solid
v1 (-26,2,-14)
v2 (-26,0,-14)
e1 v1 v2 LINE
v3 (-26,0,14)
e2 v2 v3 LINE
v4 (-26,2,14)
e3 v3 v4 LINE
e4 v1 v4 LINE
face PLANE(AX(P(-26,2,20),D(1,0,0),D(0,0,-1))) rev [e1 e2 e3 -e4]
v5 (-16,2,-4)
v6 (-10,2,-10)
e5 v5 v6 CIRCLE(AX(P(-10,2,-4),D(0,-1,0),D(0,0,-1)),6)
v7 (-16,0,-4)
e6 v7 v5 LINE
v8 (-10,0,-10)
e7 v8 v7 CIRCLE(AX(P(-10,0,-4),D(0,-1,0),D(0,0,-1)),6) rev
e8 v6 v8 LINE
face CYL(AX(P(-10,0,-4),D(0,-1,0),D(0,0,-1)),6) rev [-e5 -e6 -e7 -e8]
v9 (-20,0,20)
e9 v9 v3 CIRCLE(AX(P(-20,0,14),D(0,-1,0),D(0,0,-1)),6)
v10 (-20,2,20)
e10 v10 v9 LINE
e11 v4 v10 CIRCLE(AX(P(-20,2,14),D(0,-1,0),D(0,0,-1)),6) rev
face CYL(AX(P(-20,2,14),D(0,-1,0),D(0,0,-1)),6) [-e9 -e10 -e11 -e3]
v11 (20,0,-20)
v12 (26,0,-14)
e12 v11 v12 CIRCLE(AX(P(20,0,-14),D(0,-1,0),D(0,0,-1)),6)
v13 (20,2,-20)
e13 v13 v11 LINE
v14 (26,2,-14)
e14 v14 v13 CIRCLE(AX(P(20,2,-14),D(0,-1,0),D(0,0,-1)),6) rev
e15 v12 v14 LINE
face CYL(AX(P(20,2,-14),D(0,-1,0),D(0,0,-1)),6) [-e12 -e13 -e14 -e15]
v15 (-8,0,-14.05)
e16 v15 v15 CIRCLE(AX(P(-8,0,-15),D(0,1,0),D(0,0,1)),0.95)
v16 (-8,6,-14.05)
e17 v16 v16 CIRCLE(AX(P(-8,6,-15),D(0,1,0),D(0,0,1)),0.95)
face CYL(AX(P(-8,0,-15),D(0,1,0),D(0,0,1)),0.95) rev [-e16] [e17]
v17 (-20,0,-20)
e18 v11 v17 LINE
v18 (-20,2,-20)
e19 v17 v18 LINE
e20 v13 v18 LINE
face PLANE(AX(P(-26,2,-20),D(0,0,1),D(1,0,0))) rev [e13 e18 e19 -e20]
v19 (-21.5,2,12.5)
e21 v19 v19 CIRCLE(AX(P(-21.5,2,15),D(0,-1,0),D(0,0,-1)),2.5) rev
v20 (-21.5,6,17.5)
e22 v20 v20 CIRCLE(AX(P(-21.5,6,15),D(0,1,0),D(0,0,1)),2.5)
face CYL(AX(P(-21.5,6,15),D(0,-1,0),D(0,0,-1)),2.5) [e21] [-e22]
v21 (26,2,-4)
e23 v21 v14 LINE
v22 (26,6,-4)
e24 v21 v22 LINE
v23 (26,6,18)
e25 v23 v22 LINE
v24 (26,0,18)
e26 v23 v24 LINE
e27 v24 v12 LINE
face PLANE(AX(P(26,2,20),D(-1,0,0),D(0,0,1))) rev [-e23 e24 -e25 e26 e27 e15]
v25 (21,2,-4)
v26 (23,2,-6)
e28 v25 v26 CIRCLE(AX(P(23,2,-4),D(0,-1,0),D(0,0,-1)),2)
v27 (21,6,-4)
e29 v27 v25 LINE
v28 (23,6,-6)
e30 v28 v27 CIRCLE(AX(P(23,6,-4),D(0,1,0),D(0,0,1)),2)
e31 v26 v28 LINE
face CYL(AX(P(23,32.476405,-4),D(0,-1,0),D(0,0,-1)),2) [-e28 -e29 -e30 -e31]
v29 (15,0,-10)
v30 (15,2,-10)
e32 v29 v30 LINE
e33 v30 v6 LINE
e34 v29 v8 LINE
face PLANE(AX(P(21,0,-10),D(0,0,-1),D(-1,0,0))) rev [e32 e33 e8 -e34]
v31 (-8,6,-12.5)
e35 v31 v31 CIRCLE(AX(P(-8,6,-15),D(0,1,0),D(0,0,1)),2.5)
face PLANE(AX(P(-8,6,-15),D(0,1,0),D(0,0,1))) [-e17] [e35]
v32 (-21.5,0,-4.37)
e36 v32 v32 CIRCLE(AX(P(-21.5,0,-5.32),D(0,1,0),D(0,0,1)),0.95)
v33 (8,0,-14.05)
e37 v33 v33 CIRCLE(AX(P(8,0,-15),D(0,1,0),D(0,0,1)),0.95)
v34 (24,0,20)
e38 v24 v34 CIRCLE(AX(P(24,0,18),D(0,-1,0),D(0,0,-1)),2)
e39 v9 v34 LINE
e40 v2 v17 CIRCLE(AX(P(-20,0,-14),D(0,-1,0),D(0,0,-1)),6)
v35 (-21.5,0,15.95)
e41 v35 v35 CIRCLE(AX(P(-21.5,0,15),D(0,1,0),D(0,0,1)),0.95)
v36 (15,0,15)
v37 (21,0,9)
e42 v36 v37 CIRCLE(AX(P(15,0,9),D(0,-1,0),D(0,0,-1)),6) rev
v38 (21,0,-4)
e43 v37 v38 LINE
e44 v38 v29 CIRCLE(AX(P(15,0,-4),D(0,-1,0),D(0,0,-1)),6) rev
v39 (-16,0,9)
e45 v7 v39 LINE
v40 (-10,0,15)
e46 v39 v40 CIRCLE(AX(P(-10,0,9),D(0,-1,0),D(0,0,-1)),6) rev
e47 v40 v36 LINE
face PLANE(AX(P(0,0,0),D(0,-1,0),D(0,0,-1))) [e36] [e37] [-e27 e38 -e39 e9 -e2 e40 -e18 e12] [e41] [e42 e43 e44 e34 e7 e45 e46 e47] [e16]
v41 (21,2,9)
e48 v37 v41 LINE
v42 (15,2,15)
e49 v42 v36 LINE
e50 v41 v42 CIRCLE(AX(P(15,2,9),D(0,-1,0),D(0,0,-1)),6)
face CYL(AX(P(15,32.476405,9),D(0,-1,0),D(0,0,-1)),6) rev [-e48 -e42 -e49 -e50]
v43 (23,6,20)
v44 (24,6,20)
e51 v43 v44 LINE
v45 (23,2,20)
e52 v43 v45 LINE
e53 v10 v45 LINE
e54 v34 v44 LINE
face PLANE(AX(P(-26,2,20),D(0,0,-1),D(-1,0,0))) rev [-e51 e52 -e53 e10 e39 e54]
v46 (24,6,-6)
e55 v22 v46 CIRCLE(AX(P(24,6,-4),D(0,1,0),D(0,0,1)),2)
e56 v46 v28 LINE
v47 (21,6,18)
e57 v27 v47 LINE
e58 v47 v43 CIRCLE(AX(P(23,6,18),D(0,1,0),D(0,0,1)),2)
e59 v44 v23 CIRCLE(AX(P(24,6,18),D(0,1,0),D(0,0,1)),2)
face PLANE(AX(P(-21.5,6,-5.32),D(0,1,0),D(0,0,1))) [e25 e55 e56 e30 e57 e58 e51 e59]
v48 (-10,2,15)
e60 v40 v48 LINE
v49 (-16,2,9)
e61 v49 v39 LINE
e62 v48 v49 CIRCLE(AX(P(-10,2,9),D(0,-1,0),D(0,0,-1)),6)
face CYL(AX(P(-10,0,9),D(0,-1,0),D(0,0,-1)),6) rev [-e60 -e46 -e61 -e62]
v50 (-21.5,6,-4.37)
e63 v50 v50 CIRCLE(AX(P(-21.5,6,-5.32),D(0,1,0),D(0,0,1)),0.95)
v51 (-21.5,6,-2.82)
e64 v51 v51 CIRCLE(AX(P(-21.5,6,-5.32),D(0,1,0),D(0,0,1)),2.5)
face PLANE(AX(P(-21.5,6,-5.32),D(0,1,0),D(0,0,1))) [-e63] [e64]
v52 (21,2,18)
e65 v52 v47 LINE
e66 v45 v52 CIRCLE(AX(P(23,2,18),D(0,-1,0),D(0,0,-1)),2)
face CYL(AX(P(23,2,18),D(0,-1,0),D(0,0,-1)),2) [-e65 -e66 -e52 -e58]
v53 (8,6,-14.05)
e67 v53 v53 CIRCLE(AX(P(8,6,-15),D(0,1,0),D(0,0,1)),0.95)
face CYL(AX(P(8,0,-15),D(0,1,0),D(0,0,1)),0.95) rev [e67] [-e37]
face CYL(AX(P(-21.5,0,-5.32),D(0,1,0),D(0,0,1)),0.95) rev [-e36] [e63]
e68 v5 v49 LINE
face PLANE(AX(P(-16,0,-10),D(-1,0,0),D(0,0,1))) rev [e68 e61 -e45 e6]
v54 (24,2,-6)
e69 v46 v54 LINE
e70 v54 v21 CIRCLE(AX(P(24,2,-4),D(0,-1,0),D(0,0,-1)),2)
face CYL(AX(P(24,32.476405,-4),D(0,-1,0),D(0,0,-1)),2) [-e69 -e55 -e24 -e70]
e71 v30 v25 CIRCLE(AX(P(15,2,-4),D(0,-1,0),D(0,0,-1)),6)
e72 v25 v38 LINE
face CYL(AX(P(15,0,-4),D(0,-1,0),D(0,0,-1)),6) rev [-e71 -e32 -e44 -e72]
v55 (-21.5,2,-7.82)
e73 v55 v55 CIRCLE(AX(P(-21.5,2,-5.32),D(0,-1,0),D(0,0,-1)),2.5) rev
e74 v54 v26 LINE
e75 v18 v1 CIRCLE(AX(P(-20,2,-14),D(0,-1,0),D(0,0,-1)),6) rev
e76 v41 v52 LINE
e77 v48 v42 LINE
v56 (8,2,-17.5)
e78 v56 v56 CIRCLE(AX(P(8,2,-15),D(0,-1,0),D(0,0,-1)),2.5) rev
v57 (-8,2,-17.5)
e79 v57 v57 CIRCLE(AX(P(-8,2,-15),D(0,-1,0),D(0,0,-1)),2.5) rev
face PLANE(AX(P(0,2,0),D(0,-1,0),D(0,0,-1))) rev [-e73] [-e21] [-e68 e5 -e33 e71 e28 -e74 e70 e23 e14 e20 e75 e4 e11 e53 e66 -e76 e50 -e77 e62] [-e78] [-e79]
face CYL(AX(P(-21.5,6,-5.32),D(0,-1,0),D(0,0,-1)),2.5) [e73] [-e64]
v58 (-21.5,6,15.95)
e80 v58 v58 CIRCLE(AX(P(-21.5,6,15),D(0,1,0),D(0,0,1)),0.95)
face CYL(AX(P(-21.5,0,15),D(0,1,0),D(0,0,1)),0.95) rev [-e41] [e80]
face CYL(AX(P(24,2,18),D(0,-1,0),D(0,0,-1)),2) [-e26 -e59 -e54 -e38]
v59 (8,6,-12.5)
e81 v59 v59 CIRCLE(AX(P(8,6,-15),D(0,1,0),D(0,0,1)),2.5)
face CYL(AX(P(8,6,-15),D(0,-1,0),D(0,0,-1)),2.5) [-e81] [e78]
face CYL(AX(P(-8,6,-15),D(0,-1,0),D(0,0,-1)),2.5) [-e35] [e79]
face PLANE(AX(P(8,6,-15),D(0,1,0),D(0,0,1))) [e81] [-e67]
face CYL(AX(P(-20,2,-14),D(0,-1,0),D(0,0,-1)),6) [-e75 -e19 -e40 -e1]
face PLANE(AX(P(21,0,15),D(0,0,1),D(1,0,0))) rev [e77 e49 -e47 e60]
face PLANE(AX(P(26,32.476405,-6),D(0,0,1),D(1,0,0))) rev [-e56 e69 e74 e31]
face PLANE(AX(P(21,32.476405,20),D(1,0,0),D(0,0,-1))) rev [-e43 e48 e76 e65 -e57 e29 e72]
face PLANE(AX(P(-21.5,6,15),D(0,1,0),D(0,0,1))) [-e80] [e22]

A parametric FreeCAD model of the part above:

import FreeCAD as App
import Part
import Sketcher

V = App.Vector


def edges_at(feature, points):
    """Names of the edges that pass closest to the given points."""
    edges = feature.Shape.Edges
    near = lambda p: min(range(len(edges)), key=lambda i: edges[i].distToShape(Part.Vertex(*p))[0])
    return sorted({f"Edge{near(p) + 1}" for p in points})


def add_polygon(sketch, points):
    """Adds a closed chain of lines whose ends are joined by coincident constraints."""
    first, n = sketch.GeometryCount, len(points)
    for a, b in zip(points, points[1:] + points[:1]):
        sketch.addGeometry(Part.LineSegment(App.Vector(*a, 0), App.Vector(*b, 0)), False)
    for i in range(n):
        sketch.addConstraint(Sketcher.Constraint("Coincident", first + i, 2, first + (i + 1) % n, 1))

doc = App.newDocument("Part")
body = doc.addObject("PartDesign::Body", "Body")

# Sketch on XZ plane
sketch1 = doc.addObject("Sketcher::SketchObject", "Sketch")
body.addObject(sketch1)
sketch1.AttachmentSupport = (doc.XZ_Plane, [""])
sketch1.MapMode = "FlatFace"
add_polygon(sketch1, [(-26, -20), (-26, 20), (26, 20), (26, -20)])  # lines 0-3
sketch1.addConstraint([
    Sketcher.Constraint("Vertical", 0),
    Sketcher.Constraint("Horizontal", 1),
    Sketcher.Constraint("Vertical", 2),
    Sketcher.Constraint("Horizontal", 3),
    Sketcher.Constraint("Symmetric", 0, 2, 2, 2, -1, 1),
    Sketcher.Constraint("DistanceX", 1, 1, 1, 2, 52.0),
    Sketcher.Constraint("DistanceY", 0, 1, 0, 2, 40.0),
])
pad1 = doc.addObject("PartDesign::Pad", "Pad")
body.addObject(pad1)
pad1.Profile = sketch1
pad1.Length = 2
pad1.Reversed = True

# Sketch on XZ plane
sketch2 = doc.addObject("Sketcher::SketchObject", "Sketch001")
body.addObject(sketch2)
sketch2.AttachmentSupport = (doc.XZ_Plane, [""])
sketch2.MapMode = "FlatFace"
sketch2.AttachmentOffset = App.Placement(V(0, 0, -2), App.Rotation())
sketch2.addGeometry([
    Part.Circle(V(8, -15, 0), V(0, 0, 1), 0.9),
    Part.Circle(V(-8, -15, 0), V(0, 0, 1), 0.9),
    Part.Circle(V(-21.5, -5.3, 0), V(0, 0, 1), 0.9),
    Part.Circle(V(-21.5, 15, 0), V(0, 0, 1), 0.9),
], False)
sketch2.addConstraint([
    Sketcher.Constraint("Equal", 0, 1),
    Sketcher.Constraint("Equal", 1, 2),
    Sketcher.Constraint("Equal", 2, 3),
    Sketcher.Constraint("Symmetric", 0, 3, 1, 3, -2),
    Sketcher.Constraint("Vertical", 2, 3, 3, 3),
    Sketcher.Constraint("Diameter", 0, 1.9),
    Sketcher.Constraint("DistanceX", -1, 1, 0, 3, 8.0),
    Sketcher.Constraint("DistanceY", 0, 3, -1, 1, 15.0),
    Sketcher.Constraint("DistanceY", -1, 1, 3, 3, 15.0),
    Sketcher.Constraint("DistanceX", 2, 3, -1, 1, 21.5),
    Sketcher.Constraint("DistanceY", 2, 3, -1, 1, 5.32),
])
pocket1 = doc.addObject("PartDesign::Pocket", "Pocket")
body.addObject(pocket1)
pocket1.Profile = sketch2
pocket1.Type = "ThroughAll"
pocket1.Reversed = True

# Sketch on XZ plane
sketch3 = doc.addObject("Sketcher::SketchObject", "Sketch002")
body.addObject(sketch3)
sketch3.AttachmentSupport = (doc.XZ_Plane, [""])
sketch3.MapMode = "FlatFace"
sketch3.AttachmentOffset = App.Placement(V(0, 0, -6), App.Rotation())
sketch3.addGeometry([
    Part.Circle(V(-21.5, -5.3, 0), V(0, 0, 1), 2.5),  # 0
    Part.Circle(V(-21.5, -5.3, 0), V(0, 0, 1), 0.9),  # 1
    Part.Circle(V(-21.5, 15, 0), V(0, 0, 1), 2.5),  # 2
    Part.Circle(V(-21.5, 15, 0), V(0, 0, 1), 0.9),  # 3
    Part.Circle(V(8, -15, 0), V(0, 0, 1), 2.5),  # 4
    Part.Circle(V(8, -15, 0), V(0, 0, 1), 0.9),  # 5
    Part.Circle(V(-8, -15, 0), V(0, 0, 1), 2.5),  # 6
    Part.Circle(V(-8, -15, 0), V(0, 0, 1), 0.9),  # 7
], False)
sketch3.addConstraint([
    Sketcher.Constraint("Coincident", 1, 3, 0, 3),
    Sketcher.Constraint("Coincident", 3, 3, 2, 3),
    Sketcher.Constraint("Coincident", 5, 3, 4, 3),
    Sketcher.Constraint("Coincident", 7, 3, 6, 3),
    Sketcher.Constraint("Equal", 0, 2),
    Sketcher.Constraint("Equal", 1, 3),
    Sketcher.Constraint("Equal", 2, 4),
    Sketcher.Constraint("Equal", 3, 5),
    Sketcher.Constraint("Equal", 4, 6),
    Sketcher.Constraint("Equal", 5, 7),
    Sketcher.Constraint("Symmetric", 4, 3, 6, 3, -2),
    Sketcher.Constraint("Vertical", 1, 3, 2, 3),
    Sketcher.Constraint("Diameter", 0, 5.0),
    Sketcher.Constraint("Diameter", 1, 1.9),
    Sketcher.Constraint("DistanceY", -1, 1, 2, 3, 15.0),
    Sketcher.Constraint("DistanceX", -1, 1, 4, 3, 8.0),
    Sketcher.Constraint("DistanceY", 4, 3, -1, 1, 15.0),
    Sketcher.Constraint("DistanceX", 0, 3, -1, 1, 21.5),
    Sketcher.Constraint("DistanceY", 0, 3, -1, 1, 5.32),
])
pad2 = doc.addObject("PartDesign::Pad", "Pad001")
body.addObject(pad2)
pad2.Profile = sketch3
pad2.Length = 4

# Sketch on XZ plane
sketch4 = doc.addObject("Sketcher::SketchObject", "Sketch003")
body.addObject(sketch4)
sketch4.AttachmentSupport = (doc.XZ_Plane, [""])
sketch4.MapMode = "FlatFace"
sketch4.AttachmentOffset = App.Placement(V(0, 0, -2), App.Rotation())
add_polygon(sketch4, [(21, -6), (21, 20), (26, 20), (26, -6)])  # lines 0-3
sketch4.addConstraint([
    Sketcher.Constraint("Vertical", 0),
    Sketcher.Constraint("Horizontal", 1),
    Sketcher.Constraint("Vertical", 2),
    Sketcher.Constraint("Horizontal", 3),
    Sketcher.Constraint("DistanceX", 1, 1, 1, 2, 5.0),
    Sketcher.Constraint("DistanceY", 0, 1, 0, 2, 26.0),
    Sketcher.Constraint("DistanceX", -1, 1, 0, 2, 21.0),
    Sketcher.Constraint("DistanceY", -1, 1, 0, 2, 20.0),
])
pad3 = doc.addObject("PartDesign::Pad", "Pad002")
body.addObject(pad3)
pad3.Profile = sketch4
pad3.Length = 4
pad3.Reversed = True

# Sketch on XZ plane
sketch5 = doc.addObject("Sketcher::SketchObject", "Sketch004")
body.addObject(sketch5)
sketch5.AttachmentSupport = (doc.XZ_Plane, [""])
sketch5.MapMode = "FlatFace"
sketch5.AttachmentOffset = App.Placement(V(0, 0, -2), App.Rotation())
add_polygon(sketch5, [(-16, -10), (-16, 15), (21, 15), (21, -10)])  # lines 0-3
sketch5.addConstraint([
    Sketcher.Constraint("Vertical", 0),
    Sketcher.Constraint("Horizontal", 1),
    Sketcher.Constraint("Vertical", 2),
    Sketcher.Constraint("Horizontal", 3),
    Sketcher.Constraint("DistanceX", 1, 1, 1, 2, 37.0),
    Sketcher.Constraint("DistanceY", 0, 1, 0, 2, 25.0),
    Sketcher.Constraint("DistanceX", 0, 2, -1, 1, 16.0),
    Sketcher.Constraint("DistanceY", -1, 1, 0, 2, 15.0),
])
pocket2 = doc.addObject("PartDesign::Pocket", "Pocket001")
body.addObject(pocket2)
pocket2.Profile = sketch5
pocket2.Type = "ThroughAll"
pocket2.Reversed = True
doc.recompute()

fillet = doc.addObject("PartDesign::Fillet", "Fillet")
body.addObject(fillet)
fillet.Base = (pocket2, edges_at(pocket2, [
    (26, 4, -6),
    (21, 4, -6),
    (21, 4, 20),
    (26, 3, 20),
]))
fillet.Radius = 2
doc.recompute()

fillet2 = doc.addObject("PartDesign::Fillet", "Fillet001")
body.addObject(fillet2)
fillet2.Base = (fillet, edges_at(fillet, [
    (-16, 1, 15),
    (-16, 1, -10),
    (21, 1, -10),
    (21, 1, 15),
    (-26, 1, 20),
    (-26, 1, -20),
    (26, 1, -20),
]))
fillet2.Radius = 6

doc.recompute()
